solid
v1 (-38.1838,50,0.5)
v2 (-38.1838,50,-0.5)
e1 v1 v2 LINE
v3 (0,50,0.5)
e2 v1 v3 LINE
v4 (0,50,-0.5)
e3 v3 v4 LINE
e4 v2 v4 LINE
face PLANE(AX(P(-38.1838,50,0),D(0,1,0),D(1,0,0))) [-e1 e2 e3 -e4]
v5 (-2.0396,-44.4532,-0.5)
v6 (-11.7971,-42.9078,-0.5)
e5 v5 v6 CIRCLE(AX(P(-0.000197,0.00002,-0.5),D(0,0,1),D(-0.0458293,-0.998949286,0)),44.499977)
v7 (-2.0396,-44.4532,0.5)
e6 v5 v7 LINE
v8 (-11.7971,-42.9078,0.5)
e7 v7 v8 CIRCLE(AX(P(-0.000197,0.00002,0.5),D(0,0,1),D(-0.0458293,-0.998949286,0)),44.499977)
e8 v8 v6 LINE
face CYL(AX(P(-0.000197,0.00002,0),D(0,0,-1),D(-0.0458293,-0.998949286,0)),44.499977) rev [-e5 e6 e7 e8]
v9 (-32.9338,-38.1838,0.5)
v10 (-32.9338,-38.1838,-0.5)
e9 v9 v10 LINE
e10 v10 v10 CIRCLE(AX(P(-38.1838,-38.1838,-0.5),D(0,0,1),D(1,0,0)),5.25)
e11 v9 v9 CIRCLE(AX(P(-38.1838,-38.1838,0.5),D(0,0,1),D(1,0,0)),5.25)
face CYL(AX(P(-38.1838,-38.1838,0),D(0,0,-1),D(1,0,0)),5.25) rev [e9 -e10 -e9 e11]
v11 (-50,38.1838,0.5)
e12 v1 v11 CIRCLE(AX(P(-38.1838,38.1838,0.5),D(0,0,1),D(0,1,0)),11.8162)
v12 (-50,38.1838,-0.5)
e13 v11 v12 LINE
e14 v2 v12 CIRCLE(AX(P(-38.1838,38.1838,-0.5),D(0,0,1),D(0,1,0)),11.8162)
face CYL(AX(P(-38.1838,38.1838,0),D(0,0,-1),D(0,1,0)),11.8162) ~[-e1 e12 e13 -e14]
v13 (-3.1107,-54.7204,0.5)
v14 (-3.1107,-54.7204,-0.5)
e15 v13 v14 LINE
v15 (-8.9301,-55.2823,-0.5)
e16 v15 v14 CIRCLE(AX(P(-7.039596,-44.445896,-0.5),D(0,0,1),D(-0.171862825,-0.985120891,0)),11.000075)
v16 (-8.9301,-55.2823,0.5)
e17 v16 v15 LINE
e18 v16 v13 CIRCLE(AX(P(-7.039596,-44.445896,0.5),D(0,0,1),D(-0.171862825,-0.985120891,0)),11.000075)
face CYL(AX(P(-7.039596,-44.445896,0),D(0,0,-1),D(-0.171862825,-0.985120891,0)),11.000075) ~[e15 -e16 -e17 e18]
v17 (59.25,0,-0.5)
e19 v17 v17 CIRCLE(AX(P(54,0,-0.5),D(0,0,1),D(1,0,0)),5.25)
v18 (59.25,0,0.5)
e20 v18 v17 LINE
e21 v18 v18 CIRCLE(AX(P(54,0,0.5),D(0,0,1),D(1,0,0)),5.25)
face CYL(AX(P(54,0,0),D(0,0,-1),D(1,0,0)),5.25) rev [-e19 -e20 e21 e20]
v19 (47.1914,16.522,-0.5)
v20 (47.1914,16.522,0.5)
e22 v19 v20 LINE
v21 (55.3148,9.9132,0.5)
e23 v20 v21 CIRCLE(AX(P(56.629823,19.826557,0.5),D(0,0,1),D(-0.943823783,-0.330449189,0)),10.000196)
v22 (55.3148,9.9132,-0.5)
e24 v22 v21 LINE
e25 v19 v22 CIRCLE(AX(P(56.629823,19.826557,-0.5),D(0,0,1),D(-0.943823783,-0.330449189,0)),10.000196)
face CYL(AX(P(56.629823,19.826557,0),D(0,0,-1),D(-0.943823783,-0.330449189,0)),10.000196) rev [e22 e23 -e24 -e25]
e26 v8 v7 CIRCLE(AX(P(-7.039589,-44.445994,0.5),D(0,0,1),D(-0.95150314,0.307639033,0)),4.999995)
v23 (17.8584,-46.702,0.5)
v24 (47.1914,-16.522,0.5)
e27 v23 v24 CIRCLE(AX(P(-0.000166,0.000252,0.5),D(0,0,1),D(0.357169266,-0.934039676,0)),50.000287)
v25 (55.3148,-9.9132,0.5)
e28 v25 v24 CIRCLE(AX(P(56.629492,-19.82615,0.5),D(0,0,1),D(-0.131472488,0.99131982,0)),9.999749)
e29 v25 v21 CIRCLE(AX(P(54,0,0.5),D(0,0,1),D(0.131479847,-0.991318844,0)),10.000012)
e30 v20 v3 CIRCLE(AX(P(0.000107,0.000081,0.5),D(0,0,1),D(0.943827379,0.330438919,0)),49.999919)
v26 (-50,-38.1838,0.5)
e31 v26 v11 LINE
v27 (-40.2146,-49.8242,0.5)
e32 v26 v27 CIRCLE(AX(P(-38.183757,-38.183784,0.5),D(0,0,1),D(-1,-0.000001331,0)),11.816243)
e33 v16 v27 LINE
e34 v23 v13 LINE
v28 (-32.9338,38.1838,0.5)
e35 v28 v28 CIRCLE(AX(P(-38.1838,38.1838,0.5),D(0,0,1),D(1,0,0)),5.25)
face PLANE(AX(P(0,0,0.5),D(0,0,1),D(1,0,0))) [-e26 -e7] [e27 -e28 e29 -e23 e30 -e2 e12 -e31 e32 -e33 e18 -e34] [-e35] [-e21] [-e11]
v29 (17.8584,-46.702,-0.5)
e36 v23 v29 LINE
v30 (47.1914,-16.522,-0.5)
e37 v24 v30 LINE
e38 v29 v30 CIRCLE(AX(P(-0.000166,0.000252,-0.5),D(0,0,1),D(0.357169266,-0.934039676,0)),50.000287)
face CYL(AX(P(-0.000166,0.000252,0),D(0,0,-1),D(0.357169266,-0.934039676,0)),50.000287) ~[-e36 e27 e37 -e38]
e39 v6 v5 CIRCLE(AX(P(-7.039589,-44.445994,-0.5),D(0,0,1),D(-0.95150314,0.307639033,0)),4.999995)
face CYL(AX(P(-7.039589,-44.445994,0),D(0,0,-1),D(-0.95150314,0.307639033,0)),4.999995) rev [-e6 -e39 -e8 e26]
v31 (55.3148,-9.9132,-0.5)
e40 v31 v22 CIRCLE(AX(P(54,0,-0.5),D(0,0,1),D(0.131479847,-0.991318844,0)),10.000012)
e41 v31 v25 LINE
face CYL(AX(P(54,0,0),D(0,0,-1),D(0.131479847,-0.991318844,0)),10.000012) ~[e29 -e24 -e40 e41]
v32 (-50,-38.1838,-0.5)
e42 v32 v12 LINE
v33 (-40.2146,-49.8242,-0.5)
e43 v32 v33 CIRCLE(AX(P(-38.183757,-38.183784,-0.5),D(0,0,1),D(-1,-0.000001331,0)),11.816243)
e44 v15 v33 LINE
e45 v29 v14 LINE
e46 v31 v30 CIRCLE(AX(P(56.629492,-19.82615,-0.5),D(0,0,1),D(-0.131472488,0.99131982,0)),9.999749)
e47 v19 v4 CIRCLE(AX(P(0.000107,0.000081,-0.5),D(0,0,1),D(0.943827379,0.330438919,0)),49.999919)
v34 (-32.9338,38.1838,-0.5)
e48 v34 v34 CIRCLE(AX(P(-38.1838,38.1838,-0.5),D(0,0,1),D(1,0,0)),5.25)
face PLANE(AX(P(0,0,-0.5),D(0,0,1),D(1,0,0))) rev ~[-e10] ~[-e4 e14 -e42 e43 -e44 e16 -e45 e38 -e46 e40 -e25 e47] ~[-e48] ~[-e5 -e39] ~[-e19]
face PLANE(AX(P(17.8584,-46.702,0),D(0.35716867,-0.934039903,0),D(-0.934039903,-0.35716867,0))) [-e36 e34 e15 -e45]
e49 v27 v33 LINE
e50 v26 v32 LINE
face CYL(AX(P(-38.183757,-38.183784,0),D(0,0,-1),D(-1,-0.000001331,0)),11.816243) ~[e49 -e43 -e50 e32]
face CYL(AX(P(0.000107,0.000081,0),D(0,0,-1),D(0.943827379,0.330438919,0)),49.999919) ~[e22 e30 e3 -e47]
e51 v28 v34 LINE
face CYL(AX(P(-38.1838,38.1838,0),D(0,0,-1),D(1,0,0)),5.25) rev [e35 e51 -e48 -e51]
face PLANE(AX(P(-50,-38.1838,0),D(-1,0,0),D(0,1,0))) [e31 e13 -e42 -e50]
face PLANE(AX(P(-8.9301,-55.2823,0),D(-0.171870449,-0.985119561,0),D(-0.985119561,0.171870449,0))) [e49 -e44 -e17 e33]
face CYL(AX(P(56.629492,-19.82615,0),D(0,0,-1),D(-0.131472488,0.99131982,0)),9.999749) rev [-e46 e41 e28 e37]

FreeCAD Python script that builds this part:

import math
import FreeCAD as App
import Part
import Sketcher

doc = App.newDocument("Part")
body = doc.addObject("PartDesign::Body", "Body")

# Sketch on XY plane
sketch1 = body.newObject("Sketcher::SketchObject", "Sketch")
sketch1.AttachmentSupport = (doc.getObject("XY_Plane"), [""])
sketch1.MapMode = "FlatFace"
sketch1.addGeometry([
    Part.ArcOfCircle(Part.Circle(App.Vector(56.6, -19.8, 0), App.Vector(0, 0, 1), 10), math.radians(98), math.radians(161)),  # 0
    Part.ArcOfCircle(Part.Circle(App.Vector(54, 0, 0), App.Vector(0, 0, 1), 10), math.radians(-82), math.radians(82)),  # 1
    Part.ArcOfCircle(Part.Circle(App.Vector(56.6, 19.8, 0), App.Vector(0, 0, 1), 10), math.radians(-161), math.radians(-98)),  # 2
    Part.ArcOfCircle(Part.Circle(App.Vector(0, 0, 0), App.Vector(0, 0, 1), 50), math.radians(19), math.radians(90)),  # 3
    Part.LineSegment(App.Vector(0, 50, 0), App.Vector(-38.2, 50, 0)),  # 4
    Part.ArcOfCircle(Part.Circle(App.Vector(-38.2, 38.2, 0), App.Vector(0, 0, 1), 11.8), math.radians(90), math.radians(180)),  # 5
    Part.LineSegment(App.Vector(-50, 38.2, 0), App.Vector(-50, -38.2, 0)),  # 6
    Part.ArcOfCircle(Part.Circle(App.Vector(-38.2, -38.2, 0), App.Vector(0, 0, 1), 11.8), math.radians(180), math.radians(260)),  # 7
    Part.LineSegment(App.Vector(-40.2, -49.8, 0), App.Vector(-8.9, -55.3, 0)),  # 8
    Part.ArcOfCircle(Part.Circle(App.Vector(-7, -44.4, 0), App.Vector(0, 0, 1), 11), math.radians(-100), math.radians(-69)),  # 9
    Part.LineSegment(App.Vector(-3.1, -54.7, 0), App.Vector(17.9, -46.7, 0)),  # 10
    Part.ArcOfCircle(Part.Circle(App.Vector(0, 0, 0), App.Vector(0, 0, 1), 50), math.radians(-69), math.radians(-19)),  # 11
    Part.Circle(App.Vector(-38.2, -38.2, 0), App.Vector(0, 0, 1), 5.2),  # 12
    Part.ArcOfCircle(Part.Circle(App.Vector(0, 0, 0), App.Vector(0, 0, 1), 44.5), math.radians(-93), math.radians(255)),  # 13
    Part.ArcOfCircle(Part.Circle(App.Vector(-7, -44.4, 0), App.Vector(0, 0, 1), 5), math.radians(162), math.radians(360)),  # 14
    Part.Circle(App.Vector(-38.2, 38.2, 0), App.Vector(0, 0, 1), 5.2),  # 15
    Part.Circle(App.Vector(54, 0, 0), App.Vector(0, 0, 1), 5.2),  # 16
], False)
sketch1.addConstraint([
    Sketcher.Constraint("Tangent", 0, 1, 1, 1),
    Sketcher.Constraint("Tangent", 1, 2, 2, 2),
    Sketcher.Constraint("Tangent", 2, 1, 3, 1),
    Sketcher.Constraint("Tangent", 3, 2, 4, 1),
    Sketcher.Constraint("Tangent", 4, 2, 5, 1),
    Sketcher.Constraint("Tangent", 5, 2, 6, 1),
    Sketcher.Constraint("Tangent", 6, 2, 7, 1),
    Sketcher.Constraint("Tangent", 7, 2, 8, 1),
    Sketcher.Constraint("Tangent", 8, 2, 9, 1),
    Sketcher.Constraint("Tangent", 9, 2, 10, 1),
    Sketcher.Constraint("Tangent", 10, 2, 11, 1),
    Sketcher.Constraint("Tangent", 11, 2, 0, 2),
    Sketcher.Constraint("Coincident", 13, 1, 14, 2),
    Sketcher.Constraint("Coincident", 14, 1, 13, 2),
    Sketcher.Constraint("Horizontal", 4),
    Sketcher.Constraint("Vertical", 6),
    Sketcher.Constraint("Coincident", 3, 3, -1, 1),
    Sketcher.Constraint("Coincident", 11, 3, -1, 1),
    Sketcher.Constraint("Coincident", 13, 3, -1, 1),
    Sketcher.Constraint("Coincident", 12, 3, 7, 3),
    Sketcher.Constraint("Coincident", 14, 3, 9, 3),
    Sketcher.Constraint("Coincident", 15, 3, 5, 3),
    Sketcher.Constraint("Coincident", 16, 3, 1, 3),
    Sketcher.Constraint("Equal", 0, 1),
    Sketcher.Constraint("Equal", 1, 2),
    Sketcher.Constraint("Equal", 5, 7),
    Sketcher.Constraint("Equal", 3, 11),
    Sketcher.Constraint("Equal", 12, 15),
    Sketcher.Constraint("Equal", 15, 16),
    Sketcher.Constraint("PointOnObject", 1, 3, -1),
    Sketcher.Constraint("Radius", 0, 10.0),
    Sketcher.Constraint("Radius", 3, 50.0),
    Sketcher.Constraint("Radius", 9, 11.0),
    Sketcher.Constraint("Radius", 14, 5.0),
    Sketcher.Constraint("Diameter", 12, 10.5),
    Sketcher.Constraint("Radius", 13, 44.5),
    Sketcher.Constraint("DistanceX", 5, 2, -1, 1, 50.0),
    Sketcher.Constraint("DistanceX", -1, 1, 1, 3, 54.0),
    Sketcher.Constraint("Radius", 5, 11.8162),
    Sketcher.Constraint("Distance", 10, 22.45),
    Sketcher.Constraint("DistanceX", 8, 2, -1, 1, 8.93),
    Sketcher.Constraint("Distance", 8, 31.757),
])
pad1 = body.newObject("PartDesign::Pad", "Pad")
pad1.Profile = sketch1
pad1.Length = 1
pad1.Midplane = True

doc.recompute()
